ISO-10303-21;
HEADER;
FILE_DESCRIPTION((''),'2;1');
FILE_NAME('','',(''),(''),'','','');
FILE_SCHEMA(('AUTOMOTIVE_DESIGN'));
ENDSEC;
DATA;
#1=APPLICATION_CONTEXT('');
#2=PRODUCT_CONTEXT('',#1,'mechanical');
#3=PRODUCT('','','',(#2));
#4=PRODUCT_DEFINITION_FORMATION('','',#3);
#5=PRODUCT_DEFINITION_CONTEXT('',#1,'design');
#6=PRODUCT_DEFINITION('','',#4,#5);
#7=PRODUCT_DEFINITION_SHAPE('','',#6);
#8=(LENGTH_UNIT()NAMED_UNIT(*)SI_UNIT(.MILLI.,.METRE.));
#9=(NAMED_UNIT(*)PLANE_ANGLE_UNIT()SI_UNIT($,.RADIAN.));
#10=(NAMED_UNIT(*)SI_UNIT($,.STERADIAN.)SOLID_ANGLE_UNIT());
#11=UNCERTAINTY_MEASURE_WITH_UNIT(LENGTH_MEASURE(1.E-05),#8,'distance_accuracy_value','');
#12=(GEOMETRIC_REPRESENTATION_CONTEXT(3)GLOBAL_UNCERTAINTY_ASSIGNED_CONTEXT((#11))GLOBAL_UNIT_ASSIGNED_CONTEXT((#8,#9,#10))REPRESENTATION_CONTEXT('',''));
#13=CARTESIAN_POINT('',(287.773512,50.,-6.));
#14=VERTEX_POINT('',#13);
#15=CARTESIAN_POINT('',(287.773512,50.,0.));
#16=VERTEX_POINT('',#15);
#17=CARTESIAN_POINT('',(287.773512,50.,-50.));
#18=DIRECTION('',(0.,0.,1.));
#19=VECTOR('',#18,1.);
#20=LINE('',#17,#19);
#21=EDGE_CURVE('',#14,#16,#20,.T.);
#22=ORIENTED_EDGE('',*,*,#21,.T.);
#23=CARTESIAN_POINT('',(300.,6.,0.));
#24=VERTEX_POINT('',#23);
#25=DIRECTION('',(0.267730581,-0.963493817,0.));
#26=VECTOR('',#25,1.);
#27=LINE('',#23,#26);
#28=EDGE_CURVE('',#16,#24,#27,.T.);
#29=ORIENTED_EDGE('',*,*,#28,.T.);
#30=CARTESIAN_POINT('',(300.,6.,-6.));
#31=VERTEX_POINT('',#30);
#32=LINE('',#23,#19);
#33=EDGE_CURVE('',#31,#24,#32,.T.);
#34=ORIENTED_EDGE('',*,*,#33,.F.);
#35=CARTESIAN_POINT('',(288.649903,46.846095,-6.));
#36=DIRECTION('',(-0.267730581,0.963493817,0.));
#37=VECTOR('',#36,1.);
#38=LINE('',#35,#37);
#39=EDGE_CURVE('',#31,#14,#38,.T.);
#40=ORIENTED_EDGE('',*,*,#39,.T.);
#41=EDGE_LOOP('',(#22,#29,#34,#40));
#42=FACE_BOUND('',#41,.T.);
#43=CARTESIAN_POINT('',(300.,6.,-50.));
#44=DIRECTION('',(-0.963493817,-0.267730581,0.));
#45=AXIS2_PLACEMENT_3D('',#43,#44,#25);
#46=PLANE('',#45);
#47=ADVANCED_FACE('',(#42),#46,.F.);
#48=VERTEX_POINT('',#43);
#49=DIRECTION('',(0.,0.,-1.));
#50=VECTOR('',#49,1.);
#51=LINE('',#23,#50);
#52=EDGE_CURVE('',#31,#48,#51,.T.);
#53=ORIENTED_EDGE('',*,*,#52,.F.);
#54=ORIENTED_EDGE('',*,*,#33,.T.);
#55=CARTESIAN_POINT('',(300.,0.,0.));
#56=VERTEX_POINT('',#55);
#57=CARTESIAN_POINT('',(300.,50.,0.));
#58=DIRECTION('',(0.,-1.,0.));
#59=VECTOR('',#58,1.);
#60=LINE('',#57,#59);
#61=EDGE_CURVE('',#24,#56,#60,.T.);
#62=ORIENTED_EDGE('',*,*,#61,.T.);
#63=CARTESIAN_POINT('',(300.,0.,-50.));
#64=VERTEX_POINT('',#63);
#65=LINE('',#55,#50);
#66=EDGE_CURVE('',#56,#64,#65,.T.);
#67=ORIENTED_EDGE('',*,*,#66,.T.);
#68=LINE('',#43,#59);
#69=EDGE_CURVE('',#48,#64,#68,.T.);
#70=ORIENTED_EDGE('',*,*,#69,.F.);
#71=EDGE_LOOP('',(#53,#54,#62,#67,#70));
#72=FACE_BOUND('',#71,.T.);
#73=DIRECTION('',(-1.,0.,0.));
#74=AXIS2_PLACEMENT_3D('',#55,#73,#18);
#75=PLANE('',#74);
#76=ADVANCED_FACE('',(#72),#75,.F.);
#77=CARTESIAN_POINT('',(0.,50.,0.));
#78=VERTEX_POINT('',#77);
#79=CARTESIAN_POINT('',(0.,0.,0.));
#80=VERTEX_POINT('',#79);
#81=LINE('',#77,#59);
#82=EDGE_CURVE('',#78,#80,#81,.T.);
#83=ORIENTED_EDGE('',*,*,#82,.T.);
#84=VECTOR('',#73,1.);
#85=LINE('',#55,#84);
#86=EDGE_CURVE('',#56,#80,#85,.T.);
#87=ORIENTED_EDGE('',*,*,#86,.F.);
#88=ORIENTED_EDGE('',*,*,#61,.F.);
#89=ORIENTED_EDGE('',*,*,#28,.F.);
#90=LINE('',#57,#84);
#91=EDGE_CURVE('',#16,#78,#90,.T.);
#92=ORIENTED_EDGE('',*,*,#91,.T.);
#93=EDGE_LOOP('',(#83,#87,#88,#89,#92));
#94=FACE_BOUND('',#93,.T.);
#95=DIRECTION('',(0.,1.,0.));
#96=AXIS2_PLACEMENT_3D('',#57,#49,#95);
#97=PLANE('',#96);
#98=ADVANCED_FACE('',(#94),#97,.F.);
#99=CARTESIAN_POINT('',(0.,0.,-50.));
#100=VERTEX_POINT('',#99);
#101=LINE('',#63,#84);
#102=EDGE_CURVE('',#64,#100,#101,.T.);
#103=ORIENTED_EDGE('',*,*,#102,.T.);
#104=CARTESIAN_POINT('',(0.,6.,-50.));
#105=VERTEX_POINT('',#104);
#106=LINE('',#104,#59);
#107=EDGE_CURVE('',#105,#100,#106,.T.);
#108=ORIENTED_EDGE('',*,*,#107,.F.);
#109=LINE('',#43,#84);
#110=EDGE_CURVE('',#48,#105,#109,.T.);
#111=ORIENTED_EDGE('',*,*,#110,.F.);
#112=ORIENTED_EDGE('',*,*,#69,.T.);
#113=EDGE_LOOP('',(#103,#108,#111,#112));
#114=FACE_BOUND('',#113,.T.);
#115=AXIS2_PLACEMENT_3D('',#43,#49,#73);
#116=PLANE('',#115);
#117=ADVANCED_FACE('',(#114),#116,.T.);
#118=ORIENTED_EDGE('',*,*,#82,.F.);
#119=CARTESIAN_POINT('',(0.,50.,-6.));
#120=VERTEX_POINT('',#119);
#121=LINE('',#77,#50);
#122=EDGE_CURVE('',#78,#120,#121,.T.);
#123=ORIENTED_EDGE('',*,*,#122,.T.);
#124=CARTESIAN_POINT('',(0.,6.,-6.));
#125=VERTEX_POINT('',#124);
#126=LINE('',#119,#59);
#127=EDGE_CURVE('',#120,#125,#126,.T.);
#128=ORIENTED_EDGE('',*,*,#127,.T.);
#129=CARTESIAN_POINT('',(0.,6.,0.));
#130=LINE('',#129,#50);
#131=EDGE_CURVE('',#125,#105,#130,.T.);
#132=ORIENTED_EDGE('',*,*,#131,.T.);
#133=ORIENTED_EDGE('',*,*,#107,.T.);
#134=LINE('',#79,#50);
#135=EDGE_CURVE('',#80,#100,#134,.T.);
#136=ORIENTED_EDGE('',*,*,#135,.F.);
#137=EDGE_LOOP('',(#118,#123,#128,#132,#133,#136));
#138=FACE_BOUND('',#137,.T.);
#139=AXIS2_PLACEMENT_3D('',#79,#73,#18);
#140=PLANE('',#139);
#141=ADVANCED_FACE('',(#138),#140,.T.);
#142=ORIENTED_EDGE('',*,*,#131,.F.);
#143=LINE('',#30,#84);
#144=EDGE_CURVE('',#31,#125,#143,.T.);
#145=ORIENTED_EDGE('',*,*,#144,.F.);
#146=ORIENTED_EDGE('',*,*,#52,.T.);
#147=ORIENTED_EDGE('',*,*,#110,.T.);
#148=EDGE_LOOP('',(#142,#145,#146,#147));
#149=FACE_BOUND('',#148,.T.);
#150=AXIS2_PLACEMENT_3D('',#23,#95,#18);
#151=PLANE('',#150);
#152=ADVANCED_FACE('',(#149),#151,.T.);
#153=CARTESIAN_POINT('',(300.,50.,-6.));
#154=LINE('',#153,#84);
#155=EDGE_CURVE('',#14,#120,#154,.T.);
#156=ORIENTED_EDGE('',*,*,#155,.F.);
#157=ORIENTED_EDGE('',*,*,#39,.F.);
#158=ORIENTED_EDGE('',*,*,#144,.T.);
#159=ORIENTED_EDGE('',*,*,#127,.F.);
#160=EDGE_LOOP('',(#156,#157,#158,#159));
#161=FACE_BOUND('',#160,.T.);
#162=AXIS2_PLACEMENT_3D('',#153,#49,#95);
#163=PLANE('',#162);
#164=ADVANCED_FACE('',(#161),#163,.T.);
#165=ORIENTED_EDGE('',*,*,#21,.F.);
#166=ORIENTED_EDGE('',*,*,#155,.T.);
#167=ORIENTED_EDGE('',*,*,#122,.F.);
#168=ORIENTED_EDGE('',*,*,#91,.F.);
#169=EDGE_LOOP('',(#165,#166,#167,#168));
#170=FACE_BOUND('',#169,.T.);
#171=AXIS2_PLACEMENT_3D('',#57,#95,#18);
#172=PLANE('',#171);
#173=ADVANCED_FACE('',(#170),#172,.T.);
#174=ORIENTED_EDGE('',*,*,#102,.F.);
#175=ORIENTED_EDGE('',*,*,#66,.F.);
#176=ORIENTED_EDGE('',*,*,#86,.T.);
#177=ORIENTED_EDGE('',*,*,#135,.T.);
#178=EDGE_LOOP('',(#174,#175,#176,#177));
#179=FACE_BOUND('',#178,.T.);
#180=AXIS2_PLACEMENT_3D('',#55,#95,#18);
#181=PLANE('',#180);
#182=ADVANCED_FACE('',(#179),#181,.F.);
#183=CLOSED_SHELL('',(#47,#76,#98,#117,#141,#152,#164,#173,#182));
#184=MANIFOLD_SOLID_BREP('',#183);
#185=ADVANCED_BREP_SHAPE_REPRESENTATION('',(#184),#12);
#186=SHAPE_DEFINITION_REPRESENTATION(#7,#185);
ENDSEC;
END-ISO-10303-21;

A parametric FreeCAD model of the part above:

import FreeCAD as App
import Part
import Sketcher

doc = App.newDocument("Part")
body = doc.addObject("PartDesign::Body", "Body")

# Sketch on YZ plane
sketch1 = body.newObject("Sketcher::SketchObject", "Sketch")
sketch1.AttachmentSupport = (doc.getObject("YZ_Plane"), [""])
sketch1.MapMode = "FlatFace"
sketch1.addGeometry([
    Part.LineSegment(App.Vector(50, 0, 0), App.Vector(0, 0, 0)),  # 0
    Part.LineSegment(App.Vector(0, 0, 0), App.Vector(0, -50, 0)),  # 1
    Part.LineSegment(App.Vector(0, -50, 0), App.Vector(6, -50, 0)),  # 2
    Part.LineSegment(App.Vector(6, -50, 0), App.Vector(6, -6, 0)),  # 3
    Part.LineSegment(App.Vector(6, -6, 0), App.Vector(50, -6, 0)),  # 4
    Part.LineSegment(App.Vector(50, -6, 0), App.Vector(50, 0, 0)),  # 5
], False)
sketch1.addConstraint([
    Sketcher.Constraint("Coincident", 0, 2, 1, 1),
    Sketcher.Constraint("Coincident", 1, 2, 2, 1),
    Sketcher.Constraint("Coincident", 2, 2, 3, 1),
    Sketcher.Constraint("Coincident", 3, 2, 4, 1),
    Sketcher.Constraint("Coincident", 4, 2, 5, 1),
    Sketcher.Constraint("Coincident", 5, 2, 0, 1),
    Sketcher.Constraint("Horizontal", 0),
    Sketcher.Constraint("Vertical", 1),
    Sketcher.Constraint("Horizontal", 2),
    Sketcher.Constraint("Vertical", 3),
    Sketcher.Constraint("Horizontal", 4),
    Sketcher.Constraint("Vertical", 5),
    Sketcher.Constraint("Coincident", 0, 2, -1, 1),
    Sketcher.Constraint("Equal", 0, 1),
    Sketcher.Constraint("Equal", 4, 3),
    Sketcher.Constraint("DistanceX", 0, 2, 0, 1, 50.0),
    Sketcher.Constraint("DistanceX", 2, 1, 2, 2, 6.0),
])
pad1 = body.newObject("PartDesign::Pad", "Pad")
pad1.Profile = sketch1
pad1.Length = 300

# Sketch on XY plane
sketch2 = body.newObject("Sketcher::SketchObject", "Sketch001")
sketch2.AttachmentSupport = (doc.getObject("XY_Plane"), [""])
sketch2.MapMode = "FlatFace"
sketch2.addGeometry([
    Part.LineSegment(App.Vector(300, 50, 0), App.Vector(288, 50, 0)),
    Part.LineSegment(App.Vector(288, 50, 0), App.Vector(300, 6, 0)),
    Part.LineSegment(App.Vector(300, 6, 0), App.Vector(300, 50, 0)),
], False)
sketch2.addConstraint([
    Sketcher.Constraint("Coincident", 0, 2, 1, 1),
    Sketcher.Constraint("Coincident", 1, 2, 2, 1),
    Sketcher.Constraint("Coincident", 2, 2, 0, 1),
    Sketcher.Constraint("Horizontal", 0),
    Sketcher.Constraint("Vertical", 2),
    Sketcher.Constraint("DistanceY", 2, 1, 2, 2, 44.0),
    Sketcher.Constraint("DistanceY", -1, 1, 0, 2, 50.0),
    Sketcher.Constraint("DistanceX", -1, 1, 1, 2, 300.0),
    Sketcher.Constraint("DistanceX", 0, 2, 0, 1, 12.226488),
])
pocket1 = body.newObject("PartDesign::Pocket", "Pocket")
pocket1.Profile = sketch2
pocket1.Type = "ThroughAll"

doc.recompute()
